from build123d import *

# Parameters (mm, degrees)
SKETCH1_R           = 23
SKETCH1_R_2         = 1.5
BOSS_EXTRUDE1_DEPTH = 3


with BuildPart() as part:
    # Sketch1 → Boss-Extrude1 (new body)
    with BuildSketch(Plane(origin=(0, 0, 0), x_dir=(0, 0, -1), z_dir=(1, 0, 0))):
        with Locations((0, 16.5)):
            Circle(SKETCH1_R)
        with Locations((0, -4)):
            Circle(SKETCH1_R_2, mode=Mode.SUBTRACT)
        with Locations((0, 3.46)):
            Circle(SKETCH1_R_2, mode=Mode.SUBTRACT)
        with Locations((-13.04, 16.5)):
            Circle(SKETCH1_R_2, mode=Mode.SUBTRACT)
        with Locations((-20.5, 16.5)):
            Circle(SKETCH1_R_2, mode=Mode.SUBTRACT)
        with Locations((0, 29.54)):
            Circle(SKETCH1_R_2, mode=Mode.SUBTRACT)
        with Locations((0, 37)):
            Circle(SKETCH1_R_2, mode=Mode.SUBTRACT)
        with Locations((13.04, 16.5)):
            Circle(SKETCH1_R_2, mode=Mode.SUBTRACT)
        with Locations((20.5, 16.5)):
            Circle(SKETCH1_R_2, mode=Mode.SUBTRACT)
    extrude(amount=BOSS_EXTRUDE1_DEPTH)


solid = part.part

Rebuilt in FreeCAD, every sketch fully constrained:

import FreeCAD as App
import Part
import Sketcher
from FreeCAD import Vector

doc = App.newDocument("Part")
params = doc.addObject("Spreadsheet::Sheet", "Params")
for row, (alias, value) in enumerate([
    ("sketch1_diameter", "46 mm"),
    ("sketch1_diameter2", "3 mm"),
    ("pad1_length", "3 mm"),
], start=1):
    params.set(f"A{row}", alias)
    params.set(f"B{row}", "=" + value)
    params.setAlias(f"B{row}", alias)

body = doc.addObject("PartDesign::Body", "Body")

sketch1 = doc.addObject("Sketcher::SketchObject", "Sketch")
body.addObject(sketch1)
sketch1.AttachmentSupport = (doc.YZ_Plane, [""])
sketch1.MapMode = "FlatFace"
sketch1.addGeometry(Part.Circle(Vector(16.5, 0, 0), Vector(0, 0, 1), 23), False)
sketch1.addGeometry(Part.Circle(Vector(-4, 0, 0), Vector(0, 0, 1), 1.5), False)
sketch1.addGeometry(Part.Circle(Vector(3.5, 0, 0), Vector(0, 0, 1), 1.5), False)
sketch1.addGeometry(Part.Circle(Vector(16.5, 20.5, 0), Vector(0, 0, 1), 1.5), False)
sketch1.addGeometry(Part.Circle(Vector(16.5, 13, 0), Vector(0, 0, 1), 1.5), False)
sketch1.addGeometry(Part.Circle(Vector(16.5, -13, 0), Vector(0, 0, 1), 1.5), False)
sketch1.addGeometry(Part.Circle(Vector(16.5, -20.5, 0), Vector(0, 0, 1), 1.5), False)
sketch1.addGeometry(Part.Circle(Vector(29.5, 0, 0), Vector(0, 0, 1), 1.5), False)
sketch1.addGeometry(Part.Circle(Vector(37, 0, 0), Vector(0, 0, 1), 1.5), False)
sketch1.addConstraint(Sketcher.Constraint("Equal", 1, 2))
sketch1.addConstraint(Sketcher.Constraint("Equal", 2, 3))
sketch1.addConstraint(Sketcher.Constraint("Equal", 3, 4))
sketch1.addConstraint(Sketcher.Constraint("Equal", 4, 5))
sketch1.addConstraint(Sketcher.Constraint("Equal", 5, 6))
sketch1.addConstraint(Sketcher.Constraint("Equal", 6, 7))
sketch1.addConstraint(Sketcher.Constraint("Equal", 7, 8))
sketch1.addConstraint(Sketcher.Constraint("Symmetric", 4, 3, 5, 3, -1))
sketch1.addConstraint(Sketcher.Constraint("Symmetric", 3, 3, 6, 3, -1))
sketch1.addConstraint(Sketcher.Constraint("PointOnObject", 0, 3, -1))
sketch1.addConstraint(Sketcher.Constraint("PointOnObject", 1, 3, -1))
sketch1.addConstraint(Sketcher.Constraint("PointOnObject", 2, 3, -1))
sketch1.addConstraint(Sketcher.Constraint("PointOnObject", 7, 3, -1))
sketch1.addConstraint(Sketcher.Constraint("PointOnObject", 8, 3, -1))
sketch1.addConstraint(Sketcher.Constraint("Vertical", 0, 3, 3, 3))
sketch1.addConstraint(Sketcher.Constraint("Vertical", 3, 3, 4, 3))
sketch1.addConstraint(Sketcher.Constraint("Diameter", 0, 46.0))
sketch1.addConstraint(Sketcher.Constraint("Diameter", 1, 3.0))
sketch1.addConstraint(Sketcher.Constraint("DistanceX", 1, 3, -1, 1, 4.0))
sketch1.addConstraint(Sketcher.Constraint("DistanceX", -1, 1, 8, 3, 37.0))
sketch1.addConstraint(Sketcher.Constraint("DistanceX", -1, 1, 0, 3, 16.5))
sketch1.addConstraint(Sketcher.Constraint("DistanceY", -1, 1, 3, 3, 20.5))
sketch1.addConstraint(Sketcher.Constraint("DistanceX", -1, 1, 2, 3, 3.46))
sketch1.addConstraint(Sketcher.Constraint("DistanceY", -1, 1, 4, 3, 13.04))
sketch1.addConstraint(Sketcher.Constraint("DistanceX", -1, 1, 7, 3, 29.54))
sketch1.setExpression("Constraints[16]", "Params.sketch1_diameter")
sketch1.setExpression("Constraints[17]", "Params.sketch1_diameter2")
pad1 = doc.addObject("PartDesign::Pad", "Pad")
body.addObject(pad1)
pad1.Profile = sketch1
pad1.setExpression("Length", "Params.pad1_length")

doc.recompute()
